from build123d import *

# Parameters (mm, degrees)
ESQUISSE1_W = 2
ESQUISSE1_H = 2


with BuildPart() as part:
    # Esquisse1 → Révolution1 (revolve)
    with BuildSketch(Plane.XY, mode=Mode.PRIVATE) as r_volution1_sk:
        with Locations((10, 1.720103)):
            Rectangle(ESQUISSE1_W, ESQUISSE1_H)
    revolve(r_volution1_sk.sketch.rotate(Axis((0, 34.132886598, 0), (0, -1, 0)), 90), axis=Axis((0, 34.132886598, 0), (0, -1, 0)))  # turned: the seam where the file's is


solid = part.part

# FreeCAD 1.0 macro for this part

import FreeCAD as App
import Part
import Sketcher
from FreeCAD import Vector

doc = App.newDocument("Part")
body = doc.addObject("PartDesign::Body", "Body")

# Sketch on XY plane
sketch1 = doc.addObject("Sketcher::SketchObject", "Sketch")
body.addObject(sketch1)
sketch1.AttachmentSupport = (doc.XY_Plane, [""])
sketch1.MapMode = "FlatFace"
sketch1.addGeometry([
    Part.LineSegment(Vector(9, 2.720103, 0), Vector(9, 0.720103, 0)),
    Part.LineSegment(Vector(9, 0.720103, 0), Vector(11, 0.720103, 0)),
    Part.LineSegment(Vector(11, 0.720103, 0), Vector(11, 2.720103, 0)),
    Part.LineSegment(Vector(11, 2.720103, 0), Vector(9, 2.720103, 0)),
], False)
sketch1.addConstraint([
    Sketcher.Constraint("Coincident", 0, 2, 1, 1),
    Sketcher.Constraint("Coincident", 1, 2, 2, 1),
    Sketcher.Constraint("Coincident", 2, 2, 3, 1),
    Sketcher.Constraint("Coincident", 3, 2, 0, 1),
    Sketcher.Constraint("Vertical", 0),
    Sketcher.Constraint("Horizontal", 1),
    Sketcher.Constraint("Vertical", 2),
    Sketcher.Constraint("Horizontal", 3),
    Sketcher.Constraint("Equal", 3, 0),
    Sketcher.Constraint("DistanceX", 1, 1, 1, 2, 2.0),
    Sketcher.Constraint("DistanceX", -1, 1, 0, 2, 9.0),
    Sketcher.Constraint("DistanceY", -1, 1, 0, 2, 0.720103),
])
revolution = doc.addObject("PartDesign::Revolution", "Revolution")
body.addObject(revolution)
revolution.Profile = sketch1
revolution.ReferenceAxis = (sketch1, ["V_Axis"])
revolution.Angle = 360

doc.recompute()
